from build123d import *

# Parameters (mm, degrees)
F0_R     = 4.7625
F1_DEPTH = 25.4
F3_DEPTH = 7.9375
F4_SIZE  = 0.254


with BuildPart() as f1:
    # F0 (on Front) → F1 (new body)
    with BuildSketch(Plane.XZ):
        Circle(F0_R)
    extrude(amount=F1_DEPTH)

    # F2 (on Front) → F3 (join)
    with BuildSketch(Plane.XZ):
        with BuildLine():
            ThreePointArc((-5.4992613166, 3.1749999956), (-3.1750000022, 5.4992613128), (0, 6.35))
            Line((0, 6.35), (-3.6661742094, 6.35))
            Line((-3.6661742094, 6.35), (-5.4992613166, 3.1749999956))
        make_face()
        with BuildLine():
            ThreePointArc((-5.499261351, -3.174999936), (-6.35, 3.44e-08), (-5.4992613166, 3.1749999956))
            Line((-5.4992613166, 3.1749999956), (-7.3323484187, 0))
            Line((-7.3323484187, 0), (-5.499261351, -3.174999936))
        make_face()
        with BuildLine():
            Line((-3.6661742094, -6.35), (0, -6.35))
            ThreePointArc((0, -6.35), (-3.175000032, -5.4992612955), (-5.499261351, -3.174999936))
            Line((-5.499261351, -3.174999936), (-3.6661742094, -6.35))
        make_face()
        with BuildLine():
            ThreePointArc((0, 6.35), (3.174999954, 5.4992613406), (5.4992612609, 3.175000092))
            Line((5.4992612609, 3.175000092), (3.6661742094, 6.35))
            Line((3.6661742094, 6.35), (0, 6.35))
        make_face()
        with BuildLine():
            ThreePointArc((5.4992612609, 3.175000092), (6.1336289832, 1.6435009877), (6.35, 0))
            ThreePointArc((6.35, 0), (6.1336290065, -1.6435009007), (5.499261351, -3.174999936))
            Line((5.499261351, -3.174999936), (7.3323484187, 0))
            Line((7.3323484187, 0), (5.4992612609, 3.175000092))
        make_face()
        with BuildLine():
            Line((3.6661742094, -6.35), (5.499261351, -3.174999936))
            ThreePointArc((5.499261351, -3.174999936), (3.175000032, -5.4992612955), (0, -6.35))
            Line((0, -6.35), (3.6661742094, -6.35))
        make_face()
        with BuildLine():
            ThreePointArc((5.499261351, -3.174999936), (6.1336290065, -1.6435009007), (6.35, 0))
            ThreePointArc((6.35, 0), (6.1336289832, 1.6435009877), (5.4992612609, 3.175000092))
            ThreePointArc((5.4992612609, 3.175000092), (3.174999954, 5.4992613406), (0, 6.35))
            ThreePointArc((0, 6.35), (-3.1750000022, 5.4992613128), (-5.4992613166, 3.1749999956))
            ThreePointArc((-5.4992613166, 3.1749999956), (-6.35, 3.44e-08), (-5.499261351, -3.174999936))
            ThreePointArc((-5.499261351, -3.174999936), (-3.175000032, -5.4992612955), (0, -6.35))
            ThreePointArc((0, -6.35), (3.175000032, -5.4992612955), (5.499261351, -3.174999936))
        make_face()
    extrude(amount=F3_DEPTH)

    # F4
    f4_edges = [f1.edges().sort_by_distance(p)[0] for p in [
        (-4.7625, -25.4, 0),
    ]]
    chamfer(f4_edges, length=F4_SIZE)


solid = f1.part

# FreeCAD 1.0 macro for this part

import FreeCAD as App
import Part
import Sketcher
from FreeCAD import Vector
Q = App.Units.Quantity


def edges_at(feature, points):
    """Names of the edges that pass closest to the given points."""
    edges = feature.Shape.Edges
    near = lambda p: min(range(len(edges)), key=lambda i: edges[i].distToShape(Part.Vertex(*p))[0])
    return sorted({f"Edge{near(p) + 1}" for p in points})


def add_polygon(sketch, points):
    """Adds a closed chain of lines whose ends are joined by coincident constraints."""
    first, n = sketch.GeometryCount, len(points)
    for a, b in zip(points, points[1:] + points[:1]):
        sketch.addGeometry(Part.LineSegment(App.Vector(*a, 0), App.Vector(*b, 0)), False)
    for i in range(n):
        sketch.addConstraint(Sketcher.Constraint("Coincident", first + i, 2, first + (i + 1) % n, 1))

doc = App.newDocument("Part")
body = doc.addObject("PartDesign::Body", "Body")

sketch1 = body.newObject("Sketcher::SketchObject", "Sketch")
sketch1.AttachmentSupport = (doc.getObject("XZ_Plane"), [""])
sketch1.MapMode = "FlatFace"
sketch1.addGeometry(Part.Circle(Vector(0, 0, 0), Vector(0, 0, 1), 4.8), False)
sketch1.addConstraint([
    Sketcher.Constraint("Coincident", 0, 3, -1, 1),
    Sketcher.Constraint("Diameter", 0, Q("0.375 in")),
])
pad1 = body.newObject("PartDesign::Pad", "Pad")
pad1.Profile = sketch1
pad1.Length = Q("1 in")

sketch2 = body.newObject("Sketcher::SketchObject", "Sketch001")
sketch2.AttachmentSupport = (doc.getObject("XZ_Plane"), [""])
sketch2.MapMode = "FlatFace"
add_polygon(sketch2, [(-3.7, 6.3), (-5.5, 3.2), (-7.3, 0), (-3.7, -6.3), (3.7, -6.3), (7.3, 0), (5.5, 3.2), (3.7, 6.3)])
sketch2.addConstraint([
    Sketcher.Constraint("Horizontal", 3),
    Sketcher.Constraint("Horizontal", 7),
    Sketcher.Constraint("Symmetric", 1, 2, 4, 2, -1, 1),
    Sketcher.Constraint("Symmetric", 2, 2, 6, 2, -1, 1),
    Sketcher.Constraint("Symmetric", 0, 2, 5, 2, -2),
    Sketcher.Constraint("PointOnObject", 1, 2, -1),
    Sketcher.Constraint("Parallel", 0, 1),
    Sketcher.Constraint("Parallel", 1, 4),
    Sketcher.Constraint("Parallel", 2, 5),
    Sketcher.Constraint("Equal", 0, 1),
    Sketcher.Constraint("Angle", 0, Q("-120 deg")),
    Sketcher.Constraint("DistanceY", 3, 2, 6, 2, Q("0.5 in")),
    Sketcher.Constraint("DistanceX", 3, 1, 3, 2, 7.332348),
])
pad2 = body.newObject("PartDesign::Pad", "Pad001")
pad2.Profile = sketch2
pad2.Length = Q("0.3125 in")
doc.recompute()

chamfer = body.newObject("PartDesign::Chamfer", "Chamfer")
chamfer.Base = (pad2, edges_at(pad2, [(-4.763, -25.4, 0)]))
chamfer.Size = Q("0.01 in")

doc.recompute()
